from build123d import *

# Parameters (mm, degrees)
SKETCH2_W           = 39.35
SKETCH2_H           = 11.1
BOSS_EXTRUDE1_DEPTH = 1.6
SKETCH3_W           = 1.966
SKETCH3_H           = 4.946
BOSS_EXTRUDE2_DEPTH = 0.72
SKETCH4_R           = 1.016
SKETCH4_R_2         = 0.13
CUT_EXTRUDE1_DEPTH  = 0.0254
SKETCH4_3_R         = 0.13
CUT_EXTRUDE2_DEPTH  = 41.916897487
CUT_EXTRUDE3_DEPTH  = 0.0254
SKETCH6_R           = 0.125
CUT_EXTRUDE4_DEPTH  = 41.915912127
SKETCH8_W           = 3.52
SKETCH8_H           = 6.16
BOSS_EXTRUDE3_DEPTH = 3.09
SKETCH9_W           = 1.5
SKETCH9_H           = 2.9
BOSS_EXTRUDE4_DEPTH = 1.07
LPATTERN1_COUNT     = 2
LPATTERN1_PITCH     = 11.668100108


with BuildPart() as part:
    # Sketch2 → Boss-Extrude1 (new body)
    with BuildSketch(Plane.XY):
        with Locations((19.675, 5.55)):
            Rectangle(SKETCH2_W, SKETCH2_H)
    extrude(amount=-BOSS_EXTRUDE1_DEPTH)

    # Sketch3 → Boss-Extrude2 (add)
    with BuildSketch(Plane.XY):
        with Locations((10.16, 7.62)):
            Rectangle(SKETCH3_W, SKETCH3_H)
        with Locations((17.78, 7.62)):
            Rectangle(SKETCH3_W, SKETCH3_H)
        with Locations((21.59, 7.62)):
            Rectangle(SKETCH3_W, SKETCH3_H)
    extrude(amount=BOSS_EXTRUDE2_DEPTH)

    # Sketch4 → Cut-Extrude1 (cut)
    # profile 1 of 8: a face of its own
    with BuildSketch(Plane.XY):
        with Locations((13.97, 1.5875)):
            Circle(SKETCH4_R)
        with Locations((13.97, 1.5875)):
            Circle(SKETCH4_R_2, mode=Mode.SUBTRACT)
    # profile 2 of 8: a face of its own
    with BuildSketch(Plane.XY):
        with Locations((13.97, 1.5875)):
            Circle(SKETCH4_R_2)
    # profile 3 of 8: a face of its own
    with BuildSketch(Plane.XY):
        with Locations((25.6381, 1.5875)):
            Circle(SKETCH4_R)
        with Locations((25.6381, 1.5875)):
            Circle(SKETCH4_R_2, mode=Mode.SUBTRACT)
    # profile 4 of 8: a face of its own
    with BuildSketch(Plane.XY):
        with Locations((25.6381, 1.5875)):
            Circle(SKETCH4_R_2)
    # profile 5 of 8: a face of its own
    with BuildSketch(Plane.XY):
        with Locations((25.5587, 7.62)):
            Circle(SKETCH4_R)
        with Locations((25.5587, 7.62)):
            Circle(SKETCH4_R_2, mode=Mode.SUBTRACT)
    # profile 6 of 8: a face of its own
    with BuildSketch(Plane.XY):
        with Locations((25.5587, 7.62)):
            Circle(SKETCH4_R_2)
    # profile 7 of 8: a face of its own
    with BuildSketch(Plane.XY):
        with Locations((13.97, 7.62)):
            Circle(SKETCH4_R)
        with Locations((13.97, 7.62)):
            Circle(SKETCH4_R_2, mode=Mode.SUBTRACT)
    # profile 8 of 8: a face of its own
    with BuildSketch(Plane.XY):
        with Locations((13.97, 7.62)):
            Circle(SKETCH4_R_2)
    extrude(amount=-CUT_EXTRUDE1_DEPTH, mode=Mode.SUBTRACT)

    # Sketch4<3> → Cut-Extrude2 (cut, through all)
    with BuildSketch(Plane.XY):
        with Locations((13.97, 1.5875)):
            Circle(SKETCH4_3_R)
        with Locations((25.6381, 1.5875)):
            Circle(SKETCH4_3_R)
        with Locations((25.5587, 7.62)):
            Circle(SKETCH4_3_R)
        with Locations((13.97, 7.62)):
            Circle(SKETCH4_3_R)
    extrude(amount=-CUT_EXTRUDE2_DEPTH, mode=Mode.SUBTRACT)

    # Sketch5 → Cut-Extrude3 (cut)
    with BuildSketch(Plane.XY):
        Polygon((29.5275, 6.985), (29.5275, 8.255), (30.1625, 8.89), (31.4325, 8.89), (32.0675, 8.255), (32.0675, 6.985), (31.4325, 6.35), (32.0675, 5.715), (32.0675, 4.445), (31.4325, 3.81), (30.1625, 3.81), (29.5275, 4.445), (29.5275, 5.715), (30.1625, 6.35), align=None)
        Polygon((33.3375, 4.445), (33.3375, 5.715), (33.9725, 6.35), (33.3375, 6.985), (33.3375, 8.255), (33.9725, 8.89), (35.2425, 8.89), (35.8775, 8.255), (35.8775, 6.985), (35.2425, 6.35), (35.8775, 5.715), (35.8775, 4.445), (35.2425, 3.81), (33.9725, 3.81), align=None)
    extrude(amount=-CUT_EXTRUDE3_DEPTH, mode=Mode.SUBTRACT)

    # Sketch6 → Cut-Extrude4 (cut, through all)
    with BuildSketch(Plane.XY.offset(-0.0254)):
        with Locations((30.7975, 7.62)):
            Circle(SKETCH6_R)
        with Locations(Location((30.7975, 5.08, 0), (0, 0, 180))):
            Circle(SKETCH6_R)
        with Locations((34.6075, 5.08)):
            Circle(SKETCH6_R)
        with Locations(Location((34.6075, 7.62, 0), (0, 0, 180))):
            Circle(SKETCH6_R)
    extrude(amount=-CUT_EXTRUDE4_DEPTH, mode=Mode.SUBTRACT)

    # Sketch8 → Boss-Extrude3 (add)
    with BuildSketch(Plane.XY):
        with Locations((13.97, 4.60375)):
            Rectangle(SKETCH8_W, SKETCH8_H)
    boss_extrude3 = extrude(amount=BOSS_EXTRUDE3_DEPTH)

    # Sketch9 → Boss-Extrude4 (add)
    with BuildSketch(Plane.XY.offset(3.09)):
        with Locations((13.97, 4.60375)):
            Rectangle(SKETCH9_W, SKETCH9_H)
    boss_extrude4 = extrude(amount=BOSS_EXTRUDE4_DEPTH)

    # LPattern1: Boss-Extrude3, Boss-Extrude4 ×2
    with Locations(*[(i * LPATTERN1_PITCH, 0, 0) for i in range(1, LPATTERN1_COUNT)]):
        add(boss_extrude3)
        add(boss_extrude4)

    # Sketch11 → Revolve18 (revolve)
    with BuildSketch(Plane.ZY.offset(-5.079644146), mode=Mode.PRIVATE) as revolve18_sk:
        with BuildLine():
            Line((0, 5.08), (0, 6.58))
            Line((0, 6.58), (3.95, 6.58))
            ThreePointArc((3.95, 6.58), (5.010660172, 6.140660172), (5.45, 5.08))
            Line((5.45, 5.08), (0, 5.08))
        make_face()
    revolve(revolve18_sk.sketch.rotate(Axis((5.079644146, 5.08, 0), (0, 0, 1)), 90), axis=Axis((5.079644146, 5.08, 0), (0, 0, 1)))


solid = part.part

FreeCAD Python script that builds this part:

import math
import FreeCAD as App
import Part
import Sketcher
from FreeCAD import Vector


def add_polygon(sketch, points):
    """Adds a closed chain of lines whose ends are joined by coincident constraints."""
    first, n = sketch.GeometryCount, len(points)
    for a, b in zip(points, points[1:] + points[:1]):
        sketch.addGeometry(Part.LineSegment(App.Vector(*a, 0), App.Vector(*b, 0)), False)
    for i in range(n):
        sketch.addConstraint(Sketcher.Constraint("Coincident", first + i, 2, first + (i + 1) % n, 1))

doc = App.newDocument("Part")
params = doc.addObject("Spreadsheet::Sheet", "Params")
for row, (alias, value) in enumerate([
    ("sketch1_height", "11.1 mm"),
    ("sketch1_width", "39.35 mm"),
    ("pad1_length", "1.6 mm"),
    ("pad2_length", "0.72 mm"),
    ("pocket1_length", "0.0254 mm"),
    ("sketch4_diameter", "0.26 mm"),
    ("sketch5_width", "1.27 mm"),
    ("pocket3_length", "0.0254 mm"),
    ("sketch6_diameter", "0.25 mm"),
    ("sketch7_width", "3.52 mm"),
    ("sketch7_height", "6.16 mm"),
    ("pad3_length", "3.09 mm"),
    ("sketch8_width", "1.5 mm"),
    ("sketch8_height", "2.9 mm"),
    ("pad4_length", "1.07 mm"),
    ("linearpattern_pitch", "11.6681 mm"),
    ("sketch9_radius", "1.5 mm"),
    ("sketch9_height", "5.45 mm"),
    ("revolution_angle", "360 deg"),
], start=1):
    params.set(f"A{row}", alias)
    params.set(f"B{row}", "=" + value)
    params.setAlias(f"B{row}", alias)

body = doc.addObject("PartDesign::Body", "Body")

# Sketch on XY plane
sketch1 = body.newObject("Sketcher::SketchObject", "Sketch")
sketch1.AttachmentSupport = (doc.getObject("XY_Plane"), [""])
sketch1.MapMode = "FlatFace"
add_polygon(sketch1, [(0, 11), (0, 0), (39, 0), (39, 11)])  # lines 0-3
sketch1.addConstraint(Sketcher.Constraint("Vertical", 0))
sketch1.addConstraint(Sketcher.Constraint("Horizontal", 1))
sketch1.addConstraint(Sketcher.Constraint("Vertical", 2))
sketch1.addConstraint(Sketcher.Constraint("Horizontal", 3))
sketch1.addConstraint(Sketcher.Constraint("Coincident", 0, 2, -1, 1))
sketch1.addConstraint(Sketcher.Constraint("DistanceY", 0, 2, 0, 1, 11.1))
sketch1.addConstraint(Sketcher.Constraint("DistanceX", 1, 1, 1, 2, 39.35))
sketch1.setExpression("Constraints[9]", "Params.sketch1_height")
sketch1.setExpression("Constraints[10]", "Params.sketch1_width")
pad1 = body.newObject("PartDesign::Pad", "Pad")
pad1.Profile = sketch1
pad1.setExpression("Length", "Params.pad1_length")
pad1.Reversed = True

# Sketch on XY plane
sketch2 = body.newObject("Sketcher::SketchObject", "Sketch001")
sketch2.AttachmentSupport = (doc.getObject("XY_Plane"), [""])
sketch2.MapMode = "FlatFace"
add_polygon(sketch2, [(9.2, 10.1), (9.2, 5.1), (11.1, 5.1), (11.1, 10.1)])  # lines 0-3
add_polygon(sketch2, [(16.8, 10.1), (16.8, 5.1), (18.8, 5.1), (18.8, 10.1)])  # lines 4-7
add_polygon(sketch2, [(20.6, 10.1), (20.6, 5.1), (22.6, 5.1), (22.6, 10.1)])  # lines 8-11
sketch2.addConstraint(Sketcher.Constraint("Vertical", 0))
sketch2.addConstraint(Sketcher.Constraint("Horizontal", 1))
sketch2.addConstraint(Sketcher.Constraint("Vertical", 2))
sketch2.addConstraint(Sketcher.Constraint("Horizontal", 3))
sketch2.addConstraint(Sketcher.Constraint("Vertical", 4))
sketch2.addConstraint(Sketcher.Constraint("Horizontal", 5))
sketch2.addConstraint(Sketcher.Constraint("Vertical", 6))
sketch2.addConstraint(Sketcher.Constraint("Horizontal", 7))
sketch2.addConstraint(Sketcher.Constraint("Vertical", 8))
sketch2.addConstraint(Sketcher.Constraint("Horizontal", 9))
sketch2.addConstraint(Sketcher.Constraint("Vertical", 10))
sketch2.addConstraint(Sketcher.Constraint("Horizontal", 11))
sketch2.addConstraint(Sketcher.Constraint("Horizontal", 1, 2, 4, 2))
sketch2.addConstraint(Sketcher.Constraint("Horizontal", 3, 2, 6, 2))
sketch2.addConstraint(Sketcher.Constraint("Horizontal", 5, 2, 8, 2))
sketch2.addConstraint(Sketcher.Constraint("Horizontal", 7, 2, 10, 2))
sketch2.addConstraint(Sketcher.Constraint("Equal", 3, 5))
sketch2.addConstraint(Sketcher.Constraint("Equal", 7, 9))
sketch2.addConstraint(Sketcher.Constraint("DistanceX", 1, 1, 1, 2, 1.966))
sketch2.addConstraint(Sketcher.Constraint("DistanceY", 0, 2, 0, 1, 4.946))
sketch2.addConstraint(Sketcher.Constraint("DistanceX", 0, 2, 4, 2, 7.62))
sketch2.addConstraint(Sketcher.Constraint("DistanceX", 4, 2, 8, 2, 3.81))
sketch2.addConstraint(Sketcher.Constraint("DistanceX", -1, 1, 0, 2, 9.177))
sketch2.addConstraint(Sketcher.Constraint("DistanceY", -1, 1, 0, 2, 5.147))
pad2 = body.newObject("PartDesign::Pad", "Pad001")
pad2.Profile = sketch2
pad2.setExpression("Length", "Params.pad2_length")

# Sketch on XY plane
sketch3 = body.newObject("Sketcher::SketchObject", "Sketch002")
sketch3.AttachmentSupport = (doc.getObject("XY_Plane"), [""])
sketch3.MapMode = "FlatFace"
sketch3.addGeometry(Part.Circle(Vector(14, 1.6, 0), Vector(0, 0, 1), 1), False)
sketch3.addGeometry(Part.Circle(Vector(25.6, 1.6, 0), Vector(0, 0, 1), 1), False)
sketch3.addGeometry(Part.Circle(Vector(25.6, 7.6, 0), Vector(0, 0, 1), 1), False)
sketch3.addGeometry(Part.Circle(Vector(14, 7.6, 0), Vector(0, 0, 1), 1), False)
sketch3.addConstraint(Sketcher.Constraint("Equal", 0, 1))
sketch3.addConstraint(Sketcher.Constraint("Equal", 1, 2))
sketch3.addConstraint(Sketcher.Constraint("Equal", 2, 3))
sketch3.addConstraint(Sketcher.Constraint("Horizontal", 0, 3, 1, 3))
sketch3.addConstraint(Sketcher.Constraint("Horizontal", 2, 3, 3, 3))
sketch3.addConstraint(Sketcher.Constraint("Vertical", 0, 3, 3, 3))
sketch3.addConstraint(Sketcher.Constraint("Diameter", 0, 2.032))
sketch3.addConstraint(Sketcher.Constraint("DistanceX", -1, 1, 0, 3, 13.97))
sketch3.addConstraint(Sketcher.Constraint("DistanceY", -1, 1, 2, 3, 7.62))
sketch3.addConstraint(Sketcher.Constraint("DistanceY", -1, 1, 0, 3, 1.5875))
sketch3.addConstraint(Sketcher.Constraint("DistanceX", -1, 1, 1, 3, 25.6381))
sketch3.addConstraint(Sketcher.Constraint("DistanceX", -1, 1, 2, 3, 25.5587))
pocket1 = body.newObject("PartDesign::Pocket", "Pocket")
pocket1.Profile = sketch3
pocket1.setExpression("Length", "Params.pocket1_length")

# Sketch on XY plane
sketch4 = body.newObject("Sketcher::SketchObject", "Sketch003")
sketch4.AttachmentSupport = (doc.getObject("XY_Plane"), [""])
sketch4.MapMode = "FlatFace"
sketch4.addGeometry(Part.Circle(Vector(13.97, 1.59, 0), Vector(0, 0, 1), 0.13), False)
sketch4.addGeometry(Part.Circle(Vector(25.64, 1.59, 0), Vector(0, 0, 1), 0.13), False)
sketch4.addGeometry(Part.Circle(Vector(25.56, 7.62, 0), Vector(0, 0, 1), 0.13), False)
sketch4.addGeometry(Part.Circle(Vector(13.97, 7.62, 0), Vector(0, 0, 1), 0.13), False)
sketch4.addConstraint(Sketcher.Constraint("Equal", 0, 1))
sketch4.addConstraint(Sketcher.Constraint("Equal", 1, 2))
sketch4.addConstraint(Sketcher.Constraint("Equal", 2, 3))
sketch4.addConstraint(Sketcher.Constraint("Horizontal", 0, 3, 1, 3))
sketch4.addConstraint(Sketcher.Constraint("Horizontal", 2, 3, 3, 3))
sketch4.addConstraint(Sketcher.Constraint("Vertical", 0, 3, 3, 3))
sketch4.addConstraint(Sketcher.Constraint("Diameter", 0, 0.26))
sketch4.addConstraint(Sketcher.Constraint("DistanceX", -1, 1, 0, 3, 13.97))
sketch4.addConstraint(Sketcher.Constraint("DistanceY", -1, 1, 2, 3, 7.62))
sketch4.addConstraint(Sketcher.Constraint("DistanceY", -1, 1, 0, 3, 1.5875))
sketch4.addConstraint(Sketcher.Constraint("DistanceX", -1, 1, 1, 3, 25.6381))
sketch4.addConstraint(Sketcher.Constraint("DistanceX", -1, 1, 2, 3, 25.5587))
sketch4.setExpression("Constraints[6]", "Params.sketch4_diameter")
pocket2 = body.newObject("PartDesign::Pocket", "Pocket001")
pocket2.Profile = sketch4
pocket2.Type = "ThroughAll"

# Sketch on XY plane
sketch5 = body.newObject("Sketcher::SketchObject", "Sketch004")
sketch5.AttachmentSupport = (doc.getObject("XY_Plane"), [""])
sketch5.MapMode = "FlatFace"
add_polygon(sketch5, [(29.5, 8.3), (29.5, 7), (30.2, 6.3), (29.5, 5.7), (29.5, 4.4), (30.2, 3.8), (31.4, 3.8), (32.1, 4.4), (32.1, 5.7), (31.4, 6.3), (32.1, 7), (32.1, 8.3), (31.4, 8.9), (30.2, 8.9)])  # lines 0-13
add_polygon(sketch5, [(33.3, 5.7), (33.3, 4.4), (34, 3.8), (35.2, 3.8), (35.9, 4.4), (35.9, 5.7), (35.2, 6.3), (35.9, 7), (35.9, 8.3), (35.2, 8.9), (34, 8.9), (33.3, 8.3), (33.3, 7), (34, 6.3)])  # lines 14-27
sketch5.addConstraint(Sketcher.Constraint("Vertical", 0))
sketch5.addConstraint(Sketcher.Constraint("Vertical", 3))
sketch5.addConstraint(Sketcher.Constraint("Horizontal", 5))
sketch5.addConstraint(Sketcher.Constraint("Vertical", 7))
sketch5.addConstraint(Sketcher.Constraint("Vertical", 10))
sketch5.addConstraint(Sketcher.Constraint("Horizontal", 12))
sketch5.addConstraint(Sketcher.Constraint("Vertical", 14))
sketch5.addConstraint(Sketcher.Constraint("Horizontal", 16))
sketch5.addConstraint(Sketcher.Constraint("Vertical", 18))
sketch5.addConstraint(Sketcher.Constraint("Vertical", 21))
sketch5.addConstraint(Sketcher.Constraint("Horizontal", 23))
sketch5.addConstraint(Sketcher.Constraint("Vertical", 25))
sketch5.addConstraint(Sketcher.Constraint("Perpendicular", 1, 2))
sketch5.addConstraint(Sketcher.Constraint("Perpendicular", 2, 4))
sketch5.addConstraint(Sketcher.Constraint("Perpendicular", 4, 6))
sketch5.addConstraint(Sketcher.Constraint("Perpendicular", 6, 8))
sketch5.addConstraint(Sketcher.Constraint("Perpendicular", 8, 9))
sketch5.addConstraint(Sketcher.Constraint("Perpendicular", 9, 11))
sketch5.addConstraint(Sketcher.Constraint("Perpendicular", 11, 13))
sketch5.addConstraint(Sketcher.Constraint("Perpendicular", 13, 15))
sketch5.addConstraint(Sketcher.Constraint("Perpendicular", 15, 17))
sketch5.addConstraint(Sketcher.Constraint("Perpendicular", 17, 19))
sketch5.addConstraint(Sketcher.Constraint("Perpendicular", 19, 20))
sketch5.addConstraint(Sketcher.Constraint("Perpendicular", 20, 22))
sketch5.addConstraint(Sketcher.Constraint("Perpendicular", 22, 24))
sketch5.addConstraint(Sketcher.Constraint("Perpendicular", 24, 26))
sketch5.addConstraint(Sketcher.Constraint("Perpendicular", 26, 27))
sketch5.addConstraint(Sketcher.Constraint("Horizontal", 3, 2, 6, 2))
sketch5.addConstraint(Sketcher.Constraint("Horizontal", 2, 2, 7, 2))
sketch5.addConstraint(Sketcher.Constraint("Horizontal", 1, 2, 8, 2))
sketch5.addConstraint(Sketcher.Constraint("Horizontal", 0, 2, 9, 2))
sketch5.addConstraint(Sketcher.Constraint("Horizontal", 10, 2, 13, 2))
sketch5.addConstraint(Sketcher.Constraint("Horizontal", 6, 2, 14, 2))
sketch5.addConstraint(Sketcher.Constraint("Horizontal", 5, 2, 15, 2))
sketch5.addConstraint(Sketcher.Constraint("Horizontal", 14, 2, 17, 2))
sketch5.addConstraint(Sketcher.Constraint("Horizontal", 7, 2, 18, 2))
sketch5.addConstraint(Sketcher.Constraint("Horizontal", 8, 2, 19, 2))
sketch5.addConstraint(Sketcher.Constraint("Horizontal", 9, 2, 20, 2))
sketch5.addConstraint(Sketcher.Constraint("Horizontal", 13, 2, 21, 2))
sketch5.addConstraint(Sketcher.Constraint("Horizontal", 12, 2, 22, 2))
sketch5.addConstraint(Sketcher.Constraint("Horizontal", 21, 2, 24, 2))
sketch5.addConstraint(Sketcher.Constraint("Horizontal", 20, 2, 25, 2))
sketch5.addConstraint(Sketcher.Constraint("Horizontal", 19, 2, 26, 2))
sketch5.addConstraint(Sketcher.Constraint("Horizontal", 18, 2, 27, 2))
sketch5.addConstraint(Sketcher.Constraint("Vertical", 0, 2, 2, 2))
sketch5.addConstraint(Sketcher.Constraint("Vertical", 1, 2, 4, 2))
sketch5.addConstraint(Sketcher.Constraint("Vertical", 5, 2, 8, 2))
sketch5.addConstraint(Sketcher.Constraint("Vertical", 8, 2, 11, 2))
sketch5.addConstraint(Sketcher.Constraint("Equal", 12, 16))
sketch5.addConstraint(Sketcher.Constraint("Equal", 23, 0))
sketch5.addConstraint(Sketcher.Constraint("Equal", 0, 3))
sketch5.addConstraint(Sketcher.Constraint("DistanceX", 5, 1, 5, 2, 1.27))
sketch5.addConstraint(Sketcher.Constraint("DistanceY", -1, 1, 1, 2, 6.35))
sketch5.addConstraint(Sketcher.Constraint("DistanceY", -1, 1, 4, 2, 3.81))
sketch5.addConstraint(Sketcher.Constraint("DistanceX", 6, 2, 14, 2, 1.27))
sketch5.addConstraint(Sketcher.Constraint("DistanceX", -1, 1, 0, 2, 29.5275))
sketch5.setExpression("Constraints[79]", "Params.sketch5_width")
pocket3 = body.newObject("PartDesign::Pocket", "Pocket002")
pocket3.Profile = sketch5
pocket3.setExpression("Length", "Params.pocket3_length")

# Sketch on XY plane
sketch6 = body.newObject("Sketcher::SketchObject", "Sketch005")
sketch6.AttachmentSupport = (doc.getObject("XY_Plane"), [""])
sketch6.MapMode = "FlatFace"
sketch6.AttachmentOffset = App.Placement(Vector(0, 0, -0.0254), App.Rotation())
sketch6.addGeometry(Part.Circle(Vector(30.8, 7.62, 0), Vector(0, 0, 1), 0.12), False)
sketch6.addGeometry(Part.Circle(Vector(30.8, 5.08, 0), Vector(0, 0, 1), 0.12), False)
sketch6.addGeometry(Part.Circle(Vector(34.61, 5.08, 0), Vector(0, 0, 1), 0.12), False)
sketch6.addGeometry(Part.Circle(Vector(34.61, 7.62, 0), Vector(0, 0, 1), 0.12), False)
sketch6.addConstraint(Sketcher.Constraint("Equal", 0, 1))
sketch6.addConstraint(Sketcher.Constraint("Equal", 1, 2))
sketch6.addConstraint(Sketcher.Constraint("Equal", 2, 3))
sketch6.addConstraint(Sketcher.Constraint("Horizontal", 1, 3, 2, 3))
sketch6.addConstraint(Sketcher.Constraint("Horizontal", 0, 3, 3, 3))
sketch6.addConstraint(Sketcher.Constraint("Vertical", 0, 3, 1, 3))
sketch6.addConstraint(Sketcher.Constraint("Vertical", 2, 3, 3, 3))
sketch6.addConstraint(Sketcher.Constraint("Diameter", 0, 0.25))
sketch6.addConstraint(Sketcher.Constraint("DistanceY", -1, 1, 0, 3, 7.62))
sketch6.addConstraint(Sketcher.Constraint("DistanceY", -1, 1, 1, 3, 5.08))
sketch6.addConstraint(Sketcher.Constraint("DistanceX", 1, 3, 2, 3, 3.81))
sketch6.addConstraint(Sketcher.Constraint("DistanceX", -1, 1, 0, 3, 30.7975))
sketch6.setExpression("Constraints[7]", "Params.sketch6_diameter")
pocket4 = body.newObject("PartDesign::Pocket", "Pocket003")
pocket4.Profile = sketch6
pocket4.Type = "ThroughAll"

# Sketch on XY plane
sketch7 = body.newObject("Sketcher::SketchObject", "Sketch006")
sketch7.AttachmentSupport = (doc.getObject("XY_Plane"), [""])
sketch7.MapMode = "FlatFace"
add_polygon(sketch7, [(12.2, 7.7), (12.2, 1.5), (15.7, 1.5), (15.7, 7.7)])  # lines 0-3
sketch7.addConstraint(Sketcher.Constraint("Vertical", 0))
sketch7.addConstraint(Sketcher.Constraint("Horizontal", 1))
sketch7.addConstraint(Sketcher.Constraint("Vertical", 2))
sketch7.addConstraint(Sketcher.Constraint("Horizontal", 3))
sketch7.addConstraint(Sketcher.Constraint("DistanceX", 1, 1, 1, 2, 3.52))
sketch7.addConstraint(Sketcher.Constraint("DistanceY", 0, 2, 0, 1, 6.16))
sketch7.addConstraint(Sketcher.Constraint("DistanceX", -1, 1, 0, 2, 12.21))
sketch7.addConstraint(Sketcher.Constraint("DistanceY", -1, 1, 0, 2, 1.52375))
sketch7.setExpression("Constraints[8]", "Params.sketch7_width")
sketch7.setExpression("Constraints[9]", "Params.sketch7_height")
pad3 = body.newObject("PartDesign::Pad", "Pad002")
pad3.Profile = sketch7
pad3.setExpression("Length", "Params.pad3_length")

# Sketch on XY plane
sketch8 = body.newObject("Sketcher::SketchObject", "Sketch007")
sketch8.AttachmentSupport = (doc.getObject("XY_Plane"), [""])
sketch8.MapMode = "FlatFace"
sketch8.AttachmentOffset = App.Placement(Vector(0, 0, 3.09), App.Rotation())
add_polygon(sketch8, [(13.2, 6.1), (13.2, 3.2), (14.7, 3.2), (14.7, 6.1)])  # lines 0-3
sketch8.addConstraint(Sketcher.Constraint("Vertical", 0))
sketch8.addConstraint(Sketcher.Constraint("Horizontal", 1))
sketch8.addConstraint(Sketcher.Constraint("Vertical", 2))
sketch8.addConstraint(Sketcher.Constraint("Horizontal", 3))
sketch8.addConstraint(Sketcher.Constraint("DistanceX", 1, 1, 1, 2, 1.5))
sketch8.addConstraint(Sketcher.Constraint("DistanceY", 0, 2, 0, 1, 2.9))
sketch8.addConstraint(Sketcher.Constraint("DistanceX", -1, 1, 0, 2, 13.22))
sketch8.addConstraint(Sketcher.Constraint("DistanceY", -1, 1, 0, 2, 3.15375))
sketch8.setExpression("Constraints[8]", "Params.sketch8_width")
sketch8.setExpression("Constraints[9]", "Params.sketch8_height")
pad4 = body.newObject("PartDesign::Pad", "Pad003")
pad4.Profile = sketch8
pad4.setExpression("Length", "Params.pad4_length")
doc.recompute()

linearpattern = body.newObject("PartDesign::LinearPattern", "LinearPattern")
linearpattern.Originals = [pad3, pad4]
linearpattern.Direction = (doc.getObject("X_Axis"), [""])
linearpattern.Mode = "offset"
linearpattern.setExpression("Offset", "Params.linearpattern_pitch")
linearpattern.Occurrences = 2
body.Tip = linearpattern

# Sketch on YZ plane
sketch9 = body.newObject("Sketcher::SketchObject", "Sketch008")
sketch9.AttachmentSupport = (doc.getObject("YZ_Plane"), [""])
sketch9.MapMode = "FlatFace"
sketch9.AttachmentOffset = App.Placement(Vector(0, 0, 5.079644), App.Rotation())
sketch9.addGeometry(Part.LineSegment(Vector(6.6, 0, 0), Vector(5.1, 0, 0)), False)
sketch9.addGeometry(Part.LineSegment(Vector(5.1, 0, 0), Vector(5.1, 5.5, 0)), False)
sketch9.addGeometry(Part.ArcOfCircle(Part.Circle(Vector(5.1, 4, 0), Vector(0, 0, 1), 1.5), math.radians(0), math.radians(90)), False)
sketch9.addGeometry(Part.LineSegment(Vector(6.6, 4, 0), Vector(6.6, 0, 0)), False)
sketch9.addGeometry(Part.LineSegment(Vector(5.1, 0, 0), Vector(5.1, 5.5, 0)), True)  # axis
sketch9.addConstraint(Sketcher.Constraint("Coincident", 0, 2, 1, 1))
sketch9.addConstraint(Sketcher.Constraint("Coincident", 1, 2, 2, 2))
sketch9.addConstraint(Sketcher.Constraint("Tangent", 2, 1, 3, 1))
sketch9.addConstraint(Sketcher.Constraint("Coincident", 3, 2, 0, 1))
sketch9.addConstraint(Sketcher.Constraint("Horizontal", 0))
sketch9.addConstraint(Sketcher.Constraint("Vertical", 1))
sketch9.addConstraint(Sketcher.Constraint("Vertical", 3))
sketch9.addConstraint(Sketcher.Constraint("Vertical", 4))
sketch9.addConstraint(Sketcher.Constraint("Coincident", 4, 1, 0, 2))
sketch9.addConstraint(Sketcher.Constraint("PointOnObject", 0, 2, -1))
sketch9.addConstraint(Sketcher.Constraint("Vertical", 2, 3, 0, 2))
sketch9.addConstraint(Sketcher.Constraint("Equal", 1, 4))
sketch9.addConstraint(Sketcher.Constraint("Radius", 2, 1.5))
sketch9.addConstraint(Sketcher.Constraint("DistanceY", 1, 1, 1, 2, 5.45))
sketch9.addConstraint(Sketcher.Constraint("DistanceX", -1, 1, 2, 3, 5.08))
sketch9.setExpression("Constraints[12]", "Params.sketch9_radius")
sketch9.setExpression("Constraints[13]", "Params.sketch9_height")
revolution = body.newObject("PartDesign::Revolution", "Revolution")
revolution.Profile = sketch9
revolution.ReferenceAxis = (sketch9, ["Axis0"])
revolution.setExpression("Angle", "Params.revolution_angle")

doc.recompute()
